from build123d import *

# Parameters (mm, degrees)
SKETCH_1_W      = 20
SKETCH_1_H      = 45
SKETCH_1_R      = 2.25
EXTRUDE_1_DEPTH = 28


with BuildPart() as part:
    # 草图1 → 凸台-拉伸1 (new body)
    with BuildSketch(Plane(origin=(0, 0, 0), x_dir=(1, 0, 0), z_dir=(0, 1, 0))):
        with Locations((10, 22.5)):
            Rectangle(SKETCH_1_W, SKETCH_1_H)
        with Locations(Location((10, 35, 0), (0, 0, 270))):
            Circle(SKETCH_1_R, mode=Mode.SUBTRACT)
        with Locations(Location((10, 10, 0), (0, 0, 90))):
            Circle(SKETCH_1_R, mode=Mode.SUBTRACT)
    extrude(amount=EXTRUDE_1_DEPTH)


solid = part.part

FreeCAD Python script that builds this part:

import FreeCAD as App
import Part
import Sketcher
from FreeCAD import Vector
Q = App.Units.Quantity


def add_polygon(sketch, points):
    """Adds a closed chain of lines whose ends are joined by coincident constraints."""
    first, n = sketch.GeometryCount, len(points)
    for a, b in zip(points, points[1:] + points[:1]):
        sketch.addGeometry(Part.LineSegment(App.Vector(*a, 0), App.Vector(*b, 0)), False)
    for i in range(n):
        sketch.addConstraint(Sketcher.Constraint("Coincident", first + i, 2, first + (i + 1) % n, 1))

doc = App.newDocument("Part")
body = doc.addObject("PartDesign::Body", "Body")

# Sketch on XZ plane
sketch1 = body.newObject("Sketcher::SketchObject", "Sketch")
sketch1.AttachmentSupport = (doc.getObject("XZ_Plane"), [""])
sketch1.MapMode = "FlatFace"
add_polygon(sketch1, [(0, -45), (0, 0), (20, 0), (20, -45)])  # lines 0-3
sketch1.addGeometry(Part.Circle(Vector(10, -10, 0), Vector(0, 0, 1), 2.2), False)  # 4
sketch1.addGeometry(Part.Circle(Vector(10, -35, 0), Vector(0, 0, 1), 2.2), False)  # 5
sketch1.addConstraint(Sketcher.Constraint("Vertical", 0))
sketch1.addConstraint(Sketcher.Constraint("Horizontal", 1))
sketch1.addConstraint(Sketcher.Constraint("Vertical", 2))
sketch1.addConstraint(Sketcher.Constraint("Horizontal", 3))
sketch1.addConstraint(Sketcher.Constraint("Coincident", 0, 2, -1, 1))
sketch1.addConstraint(Sketcher.Constraint("Equal", 4, 5))
sketch1.addConstraint(Sketcher.Constraint("Vertical", 4, 3, 5, 3))
sketch1.addConstraint(Sketcher.Constraint("Diameter", 4, Q("4.5 mm")))
sketch1.addConstraint(Sketcher.Constraint("DistanceX", 1, 1, 1, 2, Q("20 mm")))
sketch1.addConstraint(Sketcher.Constraint("DistanceY", 0, 1, 0, 2, Q("45 mm")))
sketch1.addConstraint(Sketcher.Constraint("DistanceX", -1, 1, 4, 3, Q("10 mm")))
sketch1.addConstraint(Sketcher.Constraint("DistanceY", 4, 3, -1, 1, Q("10 mm")))
sketch1.addConstraint(Sketcher.Constraint("DistanceY", 5, 3, -1, 1, Q("35 mm")))
pad1 = body.newObject("PartDesign::Pad", "Pad")
pad1.Profile = sketch1
pad1.Length = 28
pad1.Reversed = True

doc.recompute()
